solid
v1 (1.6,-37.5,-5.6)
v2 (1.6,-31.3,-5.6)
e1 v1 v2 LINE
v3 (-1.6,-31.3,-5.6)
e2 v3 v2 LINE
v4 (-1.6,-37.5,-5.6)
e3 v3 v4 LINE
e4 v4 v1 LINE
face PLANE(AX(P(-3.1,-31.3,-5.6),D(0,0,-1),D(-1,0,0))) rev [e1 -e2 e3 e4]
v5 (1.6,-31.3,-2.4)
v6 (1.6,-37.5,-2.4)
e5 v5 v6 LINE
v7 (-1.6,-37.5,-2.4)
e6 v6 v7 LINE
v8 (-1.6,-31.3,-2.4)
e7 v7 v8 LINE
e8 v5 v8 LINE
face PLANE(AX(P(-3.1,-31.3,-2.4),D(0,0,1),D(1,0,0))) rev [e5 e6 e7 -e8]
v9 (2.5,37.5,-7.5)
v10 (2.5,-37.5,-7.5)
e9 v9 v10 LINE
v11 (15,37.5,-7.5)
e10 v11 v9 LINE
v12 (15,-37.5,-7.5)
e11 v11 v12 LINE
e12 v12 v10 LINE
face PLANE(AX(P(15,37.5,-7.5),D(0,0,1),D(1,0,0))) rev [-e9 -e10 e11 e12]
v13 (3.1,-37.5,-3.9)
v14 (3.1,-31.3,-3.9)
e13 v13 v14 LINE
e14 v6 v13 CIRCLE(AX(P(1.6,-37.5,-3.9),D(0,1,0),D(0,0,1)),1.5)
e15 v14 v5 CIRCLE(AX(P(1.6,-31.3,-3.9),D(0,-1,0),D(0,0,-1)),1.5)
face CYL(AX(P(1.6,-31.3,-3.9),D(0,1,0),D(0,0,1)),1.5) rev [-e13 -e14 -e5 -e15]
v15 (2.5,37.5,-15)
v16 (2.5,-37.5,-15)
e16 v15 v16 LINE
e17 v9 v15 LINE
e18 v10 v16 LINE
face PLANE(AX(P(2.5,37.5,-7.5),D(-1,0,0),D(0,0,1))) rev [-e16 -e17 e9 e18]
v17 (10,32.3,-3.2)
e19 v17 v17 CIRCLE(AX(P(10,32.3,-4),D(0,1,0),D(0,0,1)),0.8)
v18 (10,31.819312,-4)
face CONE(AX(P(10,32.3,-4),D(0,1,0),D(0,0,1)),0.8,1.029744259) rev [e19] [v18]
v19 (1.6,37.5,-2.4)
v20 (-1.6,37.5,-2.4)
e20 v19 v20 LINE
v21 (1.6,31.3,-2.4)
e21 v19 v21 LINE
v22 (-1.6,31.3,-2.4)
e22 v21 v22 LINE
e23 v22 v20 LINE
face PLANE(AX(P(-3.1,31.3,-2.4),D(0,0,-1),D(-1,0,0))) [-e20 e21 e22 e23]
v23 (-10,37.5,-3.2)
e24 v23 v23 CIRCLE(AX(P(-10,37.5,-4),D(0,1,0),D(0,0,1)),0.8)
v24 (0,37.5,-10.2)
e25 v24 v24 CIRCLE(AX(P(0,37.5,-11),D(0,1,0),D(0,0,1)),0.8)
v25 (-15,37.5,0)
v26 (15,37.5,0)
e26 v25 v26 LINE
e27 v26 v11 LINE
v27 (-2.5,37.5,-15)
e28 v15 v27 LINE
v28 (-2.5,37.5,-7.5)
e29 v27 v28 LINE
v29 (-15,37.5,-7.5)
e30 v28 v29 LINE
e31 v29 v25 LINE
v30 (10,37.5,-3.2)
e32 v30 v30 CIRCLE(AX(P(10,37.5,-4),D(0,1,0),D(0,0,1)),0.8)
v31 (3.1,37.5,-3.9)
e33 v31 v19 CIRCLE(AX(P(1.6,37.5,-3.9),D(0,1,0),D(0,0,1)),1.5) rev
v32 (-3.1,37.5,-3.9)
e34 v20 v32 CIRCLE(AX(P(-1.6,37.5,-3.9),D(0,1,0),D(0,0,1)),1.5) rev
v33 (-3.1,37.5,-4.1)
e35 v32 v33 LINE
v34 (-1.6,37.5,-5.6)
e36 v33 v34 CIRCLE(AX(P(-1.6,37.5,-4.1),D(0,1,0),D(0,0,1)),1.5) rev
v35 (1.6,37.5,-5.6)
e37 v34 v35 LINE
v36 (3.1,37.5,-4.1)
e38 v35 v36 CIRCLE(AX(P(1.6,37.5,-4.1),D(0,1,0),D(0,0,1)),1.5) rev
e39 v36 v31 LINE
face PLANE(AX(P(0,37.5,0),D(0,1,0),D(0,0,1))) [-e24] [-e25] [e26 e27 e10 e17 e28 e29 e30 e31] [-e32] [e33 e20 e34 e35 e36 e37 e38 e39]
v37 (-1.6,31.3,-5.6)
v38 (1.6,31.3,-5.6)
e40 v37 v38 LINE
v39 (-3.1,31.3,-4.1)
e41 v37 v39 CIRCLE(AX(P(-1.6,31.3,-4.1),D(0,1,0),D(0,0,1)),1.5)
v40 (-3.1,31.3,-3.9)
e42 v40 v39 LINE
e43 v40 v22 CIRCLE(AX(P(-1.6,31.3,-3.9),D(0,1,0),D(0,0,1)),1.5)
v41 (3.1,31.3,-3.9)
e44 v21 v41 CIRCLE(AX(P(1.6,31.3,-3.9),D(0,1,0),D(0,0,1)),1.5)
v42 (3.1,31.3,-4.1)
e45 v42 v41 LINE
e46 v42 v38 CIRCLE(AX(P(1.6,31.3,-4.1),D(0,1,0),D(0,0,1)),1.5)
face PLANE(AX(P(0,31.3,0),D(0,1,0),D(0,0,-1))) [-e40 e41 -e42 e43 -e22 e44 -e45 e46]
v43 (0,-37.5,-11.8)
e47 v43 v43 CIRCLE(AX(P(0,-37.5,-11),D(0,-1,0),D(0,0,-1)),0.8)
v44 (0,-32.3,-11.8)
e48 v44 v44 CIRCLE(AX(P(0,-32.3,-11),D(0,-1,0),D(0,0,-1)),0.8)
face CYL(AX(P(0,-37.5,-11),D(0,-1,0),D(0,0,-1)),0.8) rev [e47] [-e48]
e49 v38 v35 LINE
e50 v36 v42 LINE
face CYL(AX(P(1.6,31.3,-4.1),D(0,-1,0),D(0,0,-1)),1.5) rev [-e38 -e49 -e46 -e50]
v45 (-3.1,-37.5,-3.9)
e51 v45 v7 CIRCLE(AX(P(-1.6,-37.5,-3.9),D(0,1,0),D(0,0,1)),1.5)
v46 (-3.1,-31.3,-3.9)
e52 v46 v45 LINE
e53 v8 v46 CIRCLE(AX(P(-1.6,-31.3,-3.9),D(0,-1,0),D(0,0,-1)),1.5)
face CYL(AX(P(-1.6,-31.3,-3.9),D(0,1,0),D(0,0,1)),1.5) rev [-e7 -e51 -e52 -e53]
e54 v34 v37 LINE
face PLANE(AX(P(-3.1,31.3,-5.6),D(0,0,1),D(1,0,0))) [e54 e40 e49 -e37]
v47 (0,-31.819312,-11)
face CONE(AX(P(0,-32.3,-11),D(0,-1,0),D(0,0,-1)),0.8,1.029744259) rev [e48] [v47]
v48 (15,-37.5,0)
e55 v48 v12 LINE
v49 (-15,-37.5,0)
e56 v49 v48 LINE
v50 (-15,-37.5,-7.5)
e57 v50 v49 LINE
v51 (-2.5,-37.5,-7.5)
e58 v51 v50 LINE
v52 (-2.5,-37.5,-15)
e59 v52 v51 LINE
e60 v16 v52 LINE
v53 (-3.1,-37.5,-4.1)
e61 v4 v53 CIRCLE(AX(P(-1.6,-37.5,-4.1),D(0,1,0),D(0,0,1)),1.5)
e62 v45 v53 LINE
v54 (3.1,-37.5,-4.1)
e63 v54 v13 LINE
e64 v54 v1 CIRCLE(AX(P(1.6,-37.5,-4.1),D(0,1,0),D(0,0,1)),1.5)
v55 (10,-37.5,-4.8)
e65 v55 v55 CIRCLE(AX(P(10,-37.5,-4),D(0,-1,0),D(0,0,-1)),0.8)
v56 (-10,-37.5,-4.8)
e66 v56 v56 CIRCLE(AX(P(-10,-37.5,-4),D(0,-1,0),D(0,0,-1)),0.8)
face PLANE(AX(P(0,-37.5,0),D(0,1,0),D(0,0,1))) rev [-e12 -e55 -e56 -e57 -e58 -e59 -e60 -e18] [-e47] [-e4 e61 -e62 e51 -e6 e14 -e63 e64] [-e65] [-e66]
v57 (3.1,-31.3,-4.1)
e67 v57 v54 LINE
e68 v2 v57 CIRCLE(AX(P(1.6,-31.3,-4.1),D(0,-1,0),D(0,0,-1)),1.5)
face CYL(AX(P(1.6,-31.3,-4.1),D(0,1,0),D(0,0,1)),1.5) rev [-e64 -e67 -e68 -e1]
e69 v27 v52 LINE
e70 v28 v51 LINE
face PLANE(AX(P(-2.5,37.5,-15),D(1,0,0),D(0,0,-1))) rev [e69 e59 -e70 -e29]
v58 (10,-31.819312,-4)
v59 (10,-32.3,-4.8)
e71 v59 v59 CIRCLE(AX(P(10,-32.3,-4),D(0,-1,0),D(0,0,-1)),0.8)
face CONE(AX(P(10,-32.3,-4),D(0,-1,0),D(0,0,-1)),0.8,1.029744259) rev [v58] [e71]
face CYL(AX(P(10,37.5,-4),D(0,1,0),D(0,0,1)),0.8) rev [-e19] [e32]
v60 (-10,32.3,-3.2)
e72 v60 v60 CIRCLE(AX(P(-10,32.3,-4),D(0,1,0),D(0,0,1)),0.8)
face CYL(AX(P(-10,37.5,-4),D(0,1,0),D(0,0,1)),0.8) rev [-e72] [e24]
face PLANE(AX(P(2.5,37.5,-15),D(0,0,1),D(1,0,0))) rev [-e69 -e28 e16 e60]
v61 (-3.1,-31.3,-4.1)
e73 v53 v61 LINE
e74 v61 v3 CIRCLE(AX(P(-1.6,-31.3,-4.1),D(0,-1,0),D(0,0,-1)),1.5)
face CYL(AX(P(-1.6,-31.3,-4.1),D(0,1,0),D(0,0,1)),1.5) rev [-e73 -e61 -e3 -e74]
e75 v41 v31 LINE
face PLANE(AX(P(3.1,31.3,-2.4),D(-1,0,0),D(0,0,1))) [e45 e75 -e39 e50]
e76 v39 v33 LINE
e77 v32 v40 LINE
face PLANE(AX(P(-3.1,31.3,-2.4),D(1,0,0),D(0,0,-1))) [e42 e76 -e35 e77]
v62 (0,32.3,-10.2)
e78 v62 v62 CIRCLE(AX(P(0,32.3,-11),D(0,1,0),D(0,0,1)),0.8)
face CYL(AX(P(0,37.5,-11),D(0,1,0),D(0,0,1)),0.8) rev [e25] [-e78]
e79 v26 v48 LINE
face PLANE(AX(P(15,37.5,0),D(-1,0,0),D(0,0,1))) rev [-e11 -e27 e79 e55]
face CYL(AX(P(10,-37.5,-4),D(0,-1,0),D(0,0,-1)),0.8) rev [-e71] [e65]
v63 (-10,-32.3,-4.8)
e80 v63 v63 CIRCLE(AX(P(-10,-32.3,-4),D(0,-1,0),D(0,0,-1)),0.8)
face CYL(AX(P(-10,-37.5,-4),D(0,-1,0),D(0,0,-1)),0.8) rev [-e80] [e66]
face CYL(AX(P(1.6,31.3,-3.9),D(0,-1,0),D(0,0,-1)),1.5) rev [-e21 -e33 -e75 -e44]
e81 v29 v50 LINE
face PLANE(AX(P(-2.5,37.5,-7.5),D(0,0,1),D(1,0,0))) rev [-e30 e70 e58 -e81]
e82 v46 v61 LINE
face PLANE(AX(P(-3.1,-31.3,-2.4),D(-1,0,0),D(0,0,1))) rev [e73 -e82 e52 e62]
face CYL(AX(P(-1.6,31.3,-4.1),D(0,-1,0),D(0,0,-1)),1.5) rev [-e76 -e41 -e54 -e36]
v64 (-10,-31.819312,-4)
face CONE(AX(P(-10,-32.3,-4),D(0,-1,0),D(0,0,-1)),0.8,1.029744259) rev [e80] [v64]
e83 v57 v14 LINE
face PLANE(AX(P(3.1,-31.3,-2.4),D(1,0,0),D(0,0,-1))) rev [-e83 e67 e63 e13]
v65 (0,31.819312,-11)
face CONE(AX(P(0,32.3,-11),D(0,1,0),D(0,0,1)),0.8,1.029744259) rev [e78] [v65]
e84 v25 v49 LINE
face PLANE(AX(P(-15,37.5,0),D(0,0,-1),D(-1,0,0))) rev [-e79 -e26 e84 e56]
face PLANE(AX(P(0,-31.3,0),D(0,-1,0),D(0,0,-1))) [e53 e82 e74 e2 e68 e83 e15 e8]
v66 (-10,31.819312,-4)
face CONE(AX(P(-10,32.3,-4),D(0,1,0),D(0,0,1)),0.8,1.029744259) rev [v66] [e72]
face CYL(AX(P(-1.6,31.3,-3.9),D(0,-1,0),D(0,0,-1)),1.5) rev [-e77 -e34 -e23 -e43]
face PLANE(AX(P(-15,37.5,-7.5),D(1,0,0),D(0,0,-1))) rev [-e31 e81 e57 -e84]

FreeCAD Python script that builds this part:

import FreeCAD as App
import Part
import Sketcher
from FreeCAD import Vector
Q = App.Units.Quantity


def edges_at(feature, points):
    """Names of the edges that pass closest to the given points."""
    edges = feature.Shape.Edges
    near = lambda p: min(range(len(edges)), key=lambda i: edges[i].distToShape(Part.Vertex(*p))[0])
    return sorted({f"Edge{near(p) + 1}" for p in points})

doc = App.newDocument("Part")
body = doc.addObject("PartDesign::Body", "Body")

# Sketch on XZ plane
sketch1 = body.newObject("Sketcher::SketchObject", "Sketch")
sketch1.AttachmentSupport = (doc.getObject("XZ_Plane"), [""])
sketch1.MapMode = "FlatFace"
sketch1.addGeometry([
    Part.LineSegment(Vector(-15, 0, 0), Vector(15, 0, 0)),  # 0
    Part.LineSegment(Vector(15, 0, 0), Vector(15, -8, 0)),  # 1
    Part.LineSegment(Vector(15, -8, 0), Vector(2, -8, 0)),  # 2
    Part.LineSegment(Vector(2, -8, 0), Vector(2, -15, 0)),  # 3
    Part.LineSegment(Vector(2, -15, 0), Vector(-2, -15, 0)),  # 4
    Part.LineSegment(Vector(-2, -15, 0), Vector(-2, -8, 0)),  # 5
    Part.LineSegment(Vector(-2, -8, 0), Vector(-15, -8, 0)),  # 6
    Part.LineSegment(Vector(-15, -8, 0), Vector(-15, 0, 0)),  # 7
], False)
sketch1.addConstraint([
    Sketcher.Constraint("Coincident", 0, 2, 1, 1),
    Sketcher.Constraint("Coincident", 1, 2, 2, 1),
    Sketcher.Constraint("Coincident", 2, 2, 3, 1),
    Sketcher.Constraint("Coincident", 3, 2, 4, 1),
    Sketcher.Constraint("Coincident", 4, 2, 5, 1),
    Sketcher.Constraint("Coincident", 5, 2, 6, 1),
    Sketcher.Constraint("Coincident", 6, 2, 7, 1),
    Sketcher.Constraint("Coincident", 7, 2, 0, 1),
    Sketcher.Constraint("Horizontal", 0),
    Sketcher.Constraint("Vertical", 1),
    Sketcher.Constraint("Horizontal", 2),
    Sketcher.Constraint("Vertical", 3),
    Sketcher.Constraint("Horizontal", 4),
    Sketcher.Constraint("Vertical", 5),
    Sketcher.Constraint("Horizontal", 6),
    Sketcher.Constraint("Vertical", 7),
    Sketcher.Constraint("Symmetric", 0, 2, 7, 2, -1, 1),
    Sketcher.Constraint("Symmetric", 2, 2, 5, 2, -2),
    Sketcher.Constraint("Equal", 1, 3),
    Sketcher.Constraint("DistanceX", 0, 1, 0, 2, Q("30 mm")),
    Sketcher.Constraint("DistanceX", 4, 2, 4, 1, Q("5 mm")),
    Sketcher.Constraint("DistanceY", 1, 2, 1, 1, Q("7.5 mm")),
])
pad1 = body.newObject("PartDesign::Pad", "Pad")
pad1.Profile = sketch1
pad1.Length = 75
pad1.Midplane = True

# Sketch on XZ plane
sketch2 = body.newObject("Sketcher::SketchObject", "Sketch001")
sketch2.AttachmentSupport = (doc.getObject("XZ_Plane"), [""])
sketch2.MapMode = "FlatFace"
sketch2.AttachmentOffset = App.Placement(Vector(0, 0, 37.5), App.Rotation())
sketch2.addGeometry([
    Part.LineSegment(Vector(-3.1, -2.4, 0), Vector(-3.1, -5.6, 0)),
    Part.LineSegment(Vector(-3.1, -5.6, 0), Vector(3.1, -5.6, 0)),
    Part.LineSegment(Vector(3.1, -5.6, 0), Vector(3.1, -2.4, 0)),
    Part.LineSegment(Vector(3.1, -2.4, 0), Vector(-3.1, -2.4, 0)),
], False)
sketch2.addConstraint([
    Sketcher.Constraint("Coincident", 0, 2, 1, 1),
    Sketcher.Constraint("Coincident", 1, 2, 2, 1),
    Sketcher.Constraint("Coincident", 2, 2, 3, 1),
    Sketcher.Constraint("Coincident", 3, 2, 0, 1),
    Sketcher.Constraint("Vertical", 0),
    Sketcher.Constraint("Horizontal", 1),
    Sketcher.Constraint("Vertical", 2),
    Sketcher.Constraint("Horizontal", 3),
    Sketcher.Constraint("DistanceX", 1, 1, 1, 2, Q("6.2 mm")),
    Sketcher.Constraint("DistanceY", 0, 2, 0, 1, Q("3.2 mm")),
    Sketcher.Constraint("DistanceX", 0, 2, -1, 1, Q("3.1 mm")),
    Sketcher.Constraint("DistanceY", 0, 2, -1, 1, Q("5.6 mm")),
])
pocket1 = body.newObject("PartDesign::Pocket", "Pocket")
pocket1.Profile = sketch2
pocket1.Length = 6.2
doc.recompute()

fillet = body.newObject("PartDesign::Fillet", "Fillet")
fillet.Base = (pocket1, edges_at(pocket1, [
    (-3.1, -34.4, -5.6),
    (-3.1, -34.4, -2.4),
    (3.1, -34.4, -2.4),
    (3.1, -34.4, -5.6),
]))
fillet.Radius = 1.5

# Sketch on YZ plane
sketch3 = body.newObject("Sketcher::SketchObject", "Sketch002")
sketch3.AttachmentSupport = (doc.getObject("YZ_Plane"), [""])
sketch3.MapMode = "FlatFace"
sketch3.AttachmentOffset = App.Placement(Vector(0, 0, -10), App.Rotation())
sketch3.addGeometry([
    Part.LineSegment(Vector(-31.8, -4, 0), Vector(-37.5, -4, 0)),
    Part.LineSegment(Vector(-37.5, -4, 0), Vector(-37.5, -4.8, 0)),
    Part.LineSegment(Vector(-37.5, -4.8, 0), Vector(-32.3, -4.8, 0)),
    Part.LineSegment(Vector(-32.3, -4.8, 0), Vector(-31.8, -4, 0)),
], False)
sketch3.addGeometry(Part.LineSegment(Vector(-37.5, -4, 0), Vector(-31.8, -4, 0)), True)  # axis
sketch3.addConstraint([
    Sketcher.Constraint("Coincident", 0, 2, 1, 1),
    Sketcher.Constraint("Coincident", 1, 2, 2, 1),
    Sketcher.Constraint("Coincident", 2, 2, 3, 1),
    Sketcher.Constraint("Coincident", 3, 2, 0, 1),
    Sketcher.Constraint("Horizontal", 0),
    Sketcher.Constraint("Vertical", 1),
    Sketcher.Constraint("Horizontal", 2),
    Sketcher.Constraint("Horizontal", 4),
    Sketcher.Constraint("Coincident", 4, 1, 0, 2),
    Sketcher.Constraint("Equal", 0, 4),
    Sketcher.Constraint("Angle", 3, Q("59 deg")),
    Sketcher.Constraint("DistanceX", 2, 1, 2, 2, Q("5.2 mm")),
    Sketcher.Constraint("DistanceY", 1, 2, 1, 1, Q("0.8 mm")),
    Sketcher.Constraint("DistanceY", 0, 2, -1, 1, Q("4 mm")),
    Sketcher.Constraint("DistanceX", 0, 2, -1, 1, Q("37.5 mm")),
])
groove = body.newObject("PartDesign::Groove", "Groove")
groove.Profile = sketch3
groove.ReferenceAxis = (sketch3, ["Axis0"])
groove.Angle = 360
doc.recompute()

datumline = body.newObject("PartDesign::Line", "DatumLine")
datumline.Placement = App.Placement(Vector(0, 0, 0), App.Rotation(Vector(0, 0, 1), Vector(0.819231921, 0, -0.573462344)))
linearpattern = body.newObject("PartDesign::LinearPattern", "LinearPattern")
linearpattern.Originals = [groove]
linearpattern.Direction = (datumline, [""])
linearpattern.Mode = "offset"
linearpattern.Offset = 12.206556
linearpattern.Occurrences = 2
body.Tip = linearpattern
doc.recompute()

linearpattern2 = body.newObject("PartDesign::LinearPattern", "LinearPattern001")
linearpattern2.Originals = [groove]
linearpattern2.Direction = (doc.getObject("X_Axis"), [""])
linearpattern2.Mode = "offset"
linearpattern2.Offset = 20
linearpattern2.Occurrences = 2
body.Tip = linearpattern2
doc.recompute()

mirrored = body.newObject("PartDesign::Mirrored", "Mirrored")
mirrored.Originals = [groove, pocket1]
mirrored.MirrorPlane = (doc.getObject("XZ_Plane"), [""])
body.Tip = mirrored

# Sketch on YZ plane
sketch4 = body.newObject("Sketcher::SketchObject", "Sketch003")
sketch4.AttachmentSupport = (doc.getObject("YZ_Plane"), [""])
sketch4.MapMode = "FlatFace"
sketch4.addGeometry([
    Part.LineSegment(Vector(37.5, -11, 0), Vector(31.8, -11, 0)),
    Part.LineSegment(Vector(31.8, -11, 0), Vector(32.3, -11.8, 0)),
    Part.LineSegment(Vector(32.3, -11.8, 0), Vector(37.5, -11.8, 0)),
    Part.LineSegment(Vector(37.5, -11.8, 0), Vector(37.5, -11, 0)),
], False)
sketch4.addGeometry(Part.LineSegment(Vector(31.8, -11, 0), Vector(37.5, -11, 0)), True)  # axis
sketch4.addConstraint([
    Sketcher.Constraint("Coincident", 0, 2, 1, 1),
    Sketcher.Constraint("Coincident", 1, 2, 2, 1),
    Sketcher.Constraint("Coincident", 2, 2, 3, 1),
    Sketcher.Constraint("Coincident", 3, 2, 0, 1),
    Sketcher.Constraint("Horizontal", 0),
    Sketcher.Constraint("Horizontal", 2),
    Sketcher.Constraint("Vertical", 3),
    Sketcher.Constraint("Horizontal", 4),
    Sketcher.Constraint("Coincident", 4, 1, 0, 2),
    Sketcher.Constraint("Vertical", 2, 2, 4, 2),
    Sketcher.Constraint("Angle", 1, Q("-59 deg")),
    Sketcher.Constraint("DistanceX", 2, 1, 2, 2, Q("5.2 mm")),
    Sketcher.Constraint("DistanceY", 3, 1, 3, 2, Q("0.8 mm")),
    Sketcher.Constraint("DistanceY", 0, 2, -1, 1, Q("11 mm")),
    Sketcher.Constraint("DistanceX", -1, 1, 1, 2, Q("32.3 mm")),
])
groove2 = body.newObject("PartDesign::Groove", "Groove001")
groove2.Profile = sketch4
groove2.ReferenceAxis = (sketch4, ["Axis0"])
groove2.Angle = 360

# Sketch on YZ plane
sketch5 = body.newObject("Sketcher::SketchObject", "Sketch004")
sketch5.AttachmentSupport = (doc.getObject("YZ_Plane"), [""])
sketch5.MapMode = "FlatFace"
sketch5.AttachmentOffset = App.Placement(Vector(0, 0, 10), App.Rotation())
sketch5.addGeometry([
    Part.LineSegment(Vector(37.5, -4, 0), Vector(31.8, -4, 0)),
    Part.LineSegment(Vector(31.8, -4, 0), Vector(32.3, -4.8, 0)),
    Part.LineSegment(Vector(32.3, -4.8, 0), Vector(37.5, -4.8, 0)),
    Part.LineSegment(Vector(37.5, -4.8, 0), Vector(37.5, -4, 0)),
], False)
sketch5.addGeometry(Part.LineSegment(Vector(31.8, -4, 0), Vector(37.5, -4, 0)), True)  # axis
sketch5.addConstraint([
    Sketcher.Constraint("Coincident", 0, 2, 1, 1),
    Sketcher.Constraint("Coincident", 1, 2, 2, 1),
    Sketcher.Constraint("Coincident", 2, 2, 3, 1),
    Sketcher.Constraint("Coincident", 3, 2, 0, 1),
    Sketcher.Constraint("Horizontal", 0),
    Sketcher.Constraint("Horizontal", 2),
    Sketcher.Constraint("Vertical", 3),
    Sketcher.Constraint("Horizontal", 4),
    Sketcher.Constraint("Coincident", 4, 1, 0, 2),
    Sketcher.Constraint("Vertical", 2, 2, 4, 2),
    Sketcher.Constraint("Angle", 1, Q("-59 deg")),
    Sketcher.Constraint("DistanceX", 2, 1, 2, 2, Q("5.2 mm")),
    Sketcher.Constraint("DistanceY", 3, 1, 3, 2, Q("0.8 mm")),
    Sketcher.Constraint("DistanceY", 0, 2, -1, 1, Q("4 mm")),
    Sketcher.Constraint("DistanceX", -1, 1, 1, 2, Q("32.3 mm")),
])
groove3 = body.newObject("PartDesign::Groove", "Groove002")
groove3.Profile = sketch5
groove3.ReferenceAxis = (sketch5, ["Axis0"])
groove3.Angle = 360
doc.recompute()

fillet2 = body.newObject("PartDesign::Fillet", "Fillet001")
fillet2.Base = (groove3, edges_at(groove3, [
    (-3.1, 34.4, -5.6),
    (-3.1, 34.4, -2.4),
    (3.1, 34.4, -2.4),
    (3.1, 34.4, -5.6),
]))
fillet2.Radius = 1.5

doc.recompute()
